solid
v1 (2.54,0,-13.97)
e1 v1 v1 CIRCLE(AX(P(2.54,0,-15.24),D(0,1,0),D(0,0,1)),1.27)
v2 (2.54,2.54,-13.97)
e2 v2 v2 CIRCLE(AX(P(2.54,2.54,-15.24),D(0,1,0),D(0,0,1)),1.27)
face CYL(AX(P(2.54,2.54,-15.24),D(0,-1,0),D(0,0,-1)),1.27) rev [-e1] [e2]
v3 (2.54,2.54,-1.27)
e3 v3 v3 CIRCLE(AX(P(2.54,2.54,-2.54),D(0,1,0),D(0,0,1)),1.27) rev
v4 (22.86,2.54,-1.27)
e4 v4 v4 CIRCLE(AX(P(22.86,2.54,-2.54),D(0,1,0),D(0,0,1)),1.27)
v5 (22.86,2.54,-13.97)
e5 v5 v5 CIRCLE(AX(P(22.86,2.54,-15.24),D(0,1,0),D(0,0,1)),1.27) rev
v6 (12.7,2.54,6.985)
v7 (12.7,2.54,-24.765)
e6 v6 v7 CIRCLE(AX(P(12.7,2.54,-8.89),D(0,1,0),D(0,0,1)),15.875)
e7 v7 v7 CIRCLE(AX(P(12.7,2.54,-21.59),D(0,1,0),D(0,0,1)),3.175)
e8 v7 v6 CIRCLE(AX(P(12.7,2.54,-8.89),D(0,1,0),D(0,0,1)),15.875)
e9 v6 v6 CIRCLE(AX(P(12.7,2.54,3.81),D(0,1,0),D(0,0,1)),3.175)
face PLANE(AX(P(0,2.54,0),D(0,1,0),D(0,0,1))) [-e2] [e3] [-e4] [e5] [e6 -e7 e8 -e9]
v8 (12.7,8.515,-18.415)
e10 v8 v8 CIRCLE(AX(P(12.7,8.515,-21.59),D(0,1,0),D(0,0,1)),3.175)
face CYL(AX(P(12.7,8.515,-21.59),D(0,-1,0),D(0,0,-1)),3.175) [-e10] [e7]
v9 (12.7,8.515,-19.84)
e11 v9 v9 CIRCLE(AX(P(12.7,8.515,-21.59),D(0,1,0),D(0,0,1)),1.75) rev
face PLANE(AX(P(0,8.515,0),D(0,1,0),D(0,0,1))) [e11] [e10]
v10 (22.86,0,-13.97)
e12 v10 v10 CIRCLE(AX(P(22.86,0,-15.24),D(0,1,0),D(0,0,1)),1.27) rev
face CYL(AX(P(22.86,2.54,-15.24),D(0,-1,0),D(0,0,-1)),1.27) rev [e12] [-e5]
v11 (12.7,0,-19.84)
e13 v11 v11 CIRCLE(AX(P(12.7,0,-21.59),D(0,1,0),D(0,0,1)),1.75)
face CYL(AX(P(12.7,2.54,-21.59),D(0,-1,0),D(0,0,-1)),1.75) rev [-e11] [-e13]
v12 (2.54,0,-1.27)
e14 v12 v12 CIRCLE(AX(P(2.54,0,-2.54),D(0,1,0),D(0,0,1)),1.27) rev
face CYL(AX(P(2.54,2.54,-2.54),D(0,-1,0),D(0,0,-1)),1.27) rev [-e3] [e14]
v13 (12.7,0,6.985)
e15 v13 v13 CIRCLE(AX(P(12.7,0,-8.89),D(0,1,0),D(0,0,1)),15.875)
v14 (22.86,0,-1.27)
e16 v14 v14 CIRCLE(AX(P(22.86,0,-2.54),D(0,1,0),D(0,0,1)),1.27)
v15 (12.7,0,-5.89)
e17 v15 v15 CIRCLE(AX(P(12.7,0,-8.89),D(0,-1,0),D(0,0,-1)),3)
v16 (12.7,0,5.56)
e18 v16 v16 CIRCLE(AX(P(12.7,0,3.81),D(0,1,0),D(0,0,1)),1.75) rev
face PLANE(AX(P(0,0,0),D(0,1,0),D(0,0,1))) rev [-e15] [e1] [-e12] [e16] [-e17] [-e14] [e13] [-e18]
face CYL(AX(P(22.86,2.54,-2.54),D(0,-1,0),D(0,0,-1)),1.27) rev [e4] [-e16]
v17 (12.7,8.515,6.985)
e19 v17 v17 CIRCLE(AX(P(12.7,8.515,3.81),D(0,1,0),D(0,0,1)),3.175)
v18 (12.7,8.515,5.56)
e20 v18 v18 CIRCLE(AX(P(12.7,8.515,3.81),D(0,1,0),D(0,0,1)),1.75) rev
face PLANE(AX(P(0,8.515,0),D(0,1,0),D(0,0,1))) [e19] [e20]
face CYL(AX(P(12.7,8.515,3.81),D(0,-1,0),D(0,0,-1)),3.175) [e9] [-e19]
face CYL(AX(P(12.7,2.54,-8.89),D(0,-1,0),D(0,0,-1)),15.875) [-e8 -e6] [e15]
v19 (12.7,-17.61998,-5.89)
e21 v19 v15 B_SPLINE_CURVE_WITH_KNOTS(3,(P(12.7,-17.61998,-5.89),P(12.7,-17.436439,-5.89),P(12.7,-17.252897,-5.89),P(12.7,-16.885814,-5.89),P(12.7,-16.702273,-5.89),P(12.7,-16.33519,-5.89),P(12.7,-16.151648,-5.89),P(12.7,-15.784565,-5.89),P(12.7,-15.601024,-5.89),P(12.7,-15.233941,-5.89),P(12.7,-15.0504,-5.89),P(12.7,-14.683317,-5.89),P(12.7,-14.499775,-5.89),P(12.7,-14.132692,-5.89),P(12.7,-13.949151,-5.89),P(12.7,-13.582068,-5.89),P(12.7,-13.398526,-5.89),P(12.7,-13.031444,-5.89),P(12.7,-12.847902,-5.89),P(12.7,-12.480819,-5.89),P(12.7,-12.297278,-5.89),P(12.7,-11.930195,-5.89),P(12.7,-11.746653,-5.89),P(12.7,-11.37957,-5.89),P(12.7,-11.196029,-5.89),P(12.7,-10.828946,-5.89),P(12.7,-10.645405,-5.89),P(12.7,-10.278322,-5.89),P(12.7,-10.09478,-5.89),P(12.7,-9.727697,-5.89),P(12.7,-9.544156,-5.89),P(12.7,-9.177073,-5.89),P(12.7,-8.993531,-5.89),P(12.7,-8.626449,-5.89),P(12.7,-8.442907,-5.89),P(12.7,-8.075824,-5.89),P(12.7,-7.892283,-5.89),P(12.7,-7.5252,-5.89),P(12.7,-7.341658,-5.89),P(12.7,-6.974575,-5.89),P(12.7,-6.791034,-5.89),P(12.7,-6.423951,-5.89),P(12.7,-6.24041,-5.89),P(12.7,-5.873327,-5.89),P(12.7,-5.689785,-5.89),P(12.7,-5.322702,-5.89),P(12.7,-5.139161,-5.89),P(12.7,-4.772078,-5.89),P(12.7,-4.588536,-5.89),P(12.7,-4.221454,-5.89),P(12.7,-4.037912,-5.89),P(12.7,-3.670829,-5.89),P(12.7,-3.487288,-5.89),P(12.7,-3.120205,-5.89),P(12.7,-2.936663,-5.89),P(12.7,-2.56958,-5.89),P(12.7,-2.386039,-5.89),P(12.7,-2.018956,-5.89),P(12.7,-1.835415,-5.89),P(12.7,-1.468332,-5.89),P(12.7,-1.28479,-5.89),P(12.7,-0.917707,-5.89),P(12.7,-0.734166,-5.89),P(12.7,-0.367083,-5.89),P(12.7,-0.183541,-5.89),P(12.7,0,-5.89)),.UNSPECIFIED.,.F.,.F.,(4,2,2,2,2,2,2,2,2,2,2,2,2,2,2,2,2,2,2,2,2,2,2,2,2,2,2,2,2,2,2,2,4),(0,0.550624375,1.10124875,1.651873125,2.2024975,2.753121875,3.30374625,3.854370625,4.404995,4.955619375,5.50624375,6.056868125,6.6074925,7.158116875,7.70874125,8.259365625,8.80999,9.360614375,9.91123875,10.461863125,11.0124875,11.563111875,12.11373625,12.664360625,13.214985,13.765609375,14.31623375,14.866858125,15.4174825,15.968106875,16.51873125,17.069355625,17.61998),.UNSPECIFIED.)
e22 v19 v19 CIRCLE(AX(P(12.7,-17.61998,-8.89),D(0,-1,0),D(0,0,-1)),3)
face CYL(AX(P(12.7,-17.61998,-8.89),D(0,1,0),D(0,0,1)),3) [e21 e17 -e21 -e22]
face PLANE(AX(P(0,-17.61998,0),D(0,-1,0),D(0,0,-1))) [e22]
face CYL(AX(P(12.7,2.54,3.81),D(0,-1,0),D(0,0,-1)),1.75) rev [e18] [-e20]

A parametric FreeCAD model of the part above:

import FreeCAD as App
import Part
import Sketcher
Q = App.Units.Quantity

doc = App.newDocument("Part")
body = doc.addObject("PartDesign::Body", "Body")

# Sketch on XZ plane
sketch1 = body.newObject("Sketcher::SketchObject", "Sketch")
sketch1.AttachmentSupport = (doc.getObject("XZ_Plane"), [""])
sketch1.MapMode = "FlatFace"
sketch1.addGeometry(Part.Circle(App.Vector(12.7, -8.9, 0), App.Vector(0, 0, 1), 15.9), False)
sketch1.addGeometry(Part.Circle(App.Vector(12.7, -21.6, 0), App.Vector(0, 0, 1), 1.8), False)
sketch1.addGeometry(Part.Circle(App.Vector(12.7, 3.8, 0), App.Vector(0, 0, 1), 1.8), False)
sketch1.addGeometry(Part.Circle(App.Vector(2.5, -2.5, 0), App.Vector(0, 0, 1), 1.3), False)
sketch1.addGeometry(Part.Circle(App.Vector(22.9, -15.2, 0), App.Vector(0, 0, 1), 1.3), False)
sketch1.addGeometry(Part.Circle(App.Vector(22.9, -2.5, 0), App.Vector(0, 0, 1), 1.3), False)
sketch1.addGeometry(Part.Circle(App.Vector(2.5, -15.2, 0), App.Vector(0, 0, 1), 1.3), False)
sketch1.addConstraint(Sketcher.Constraint("Equal", 1, 2))
sketch1.addConstraint(Sketcher.Constraint("Equal", 3, 4))
sketch1.addConstraint(Sketcher.Constraint("Equal", 4, 5))
sketch1.addConstraint(Sketcher.Constraint("Equal", 5, 6))
sketch1.addConstraint(Sketcher.Constraint("Horizontal", 3, 3, 5, 3))
sketch1.addConstraint(Sketcher.Constraint("Horizontal", 4, 3, 6, 3))
sketch1.addConstraint(Sketcher.Constraint("Vertical", 0, 3, 1, 3))
sketch1.addConstraint(Sketcher.Constraint("Vertical", 1, 3, 2, 3))
sketch1.addConstraint(Sketcher.Constraint("Vertical", 4, 3, 5, 3))
sketch1.addConstraint(Sketcher.Constraint("Vertical", 3, 3, 6, 3))
sketch1.addConstraint(Sketcher.Constraint("Diameter", 3, Q("0.1 in")))
sketch1.addConstraint(Sketcher.Constraint("Diameter", 0, Q("1.25 in")))
sketch1.addConstraint(Sketcher.Constraint("DistanceY", 1, 3, 2, 3, Q("1 in")))
sketch1.addConstraint(Sketcher.Constraint("DistanceX", -1, 1, 0, 3, Q("0.5 in")))
sketch1.addConstraint(Sketcher.Constraint("DistanceX", -1, 1, 3, 3, Q("0.1 in")))
sketch1.addConstraint(Sketcher.Constraint("DistanceY", 3, 3, -1, 1, Q("0.1 in")))
sketch1.addConstraint(Sketcher.Constraint("DistanceX", -1, 1, 4, 3, Q("0.9 in")))
sketch1.addConstraint(Sketcher.Constraint("DistanceY", 4, 3, -1, 1, Q("0.6 in")))
sketch1.addConstraint(Sketcher.Constraint("DistanceY", 1, 3, 0, 3, Q("0.5 in")))
sketch1.addConstraint(Sketcher.Constraint("Diameter", 1, Q("3.5 mm")))
sketch1.addConstraint(Sketcher.Constraint("DistanceY", 0, 3, -1, 1, Q("0.35 in")))
pad1 = body.newObject("PartDesign::Pad", "Pad")
pad1.Profile = sketch1
pad1.Length = Q("0.1 in")
pad1.Reversed = True

# Sketch on XZ plane
sketch2 = body.newObject("Sketcher::SketchObject", "Sketch001")
sketch2.AttachmentSupport = (doc.getObject("XZ_Plane"), [""])
sketch2.MapMode = "FlatFace"
sketch2.AttachmentOffset = App.Placement(App.Vector(0, 0, -0.1 * 25.4), App.Rotation())
sketch2.addGeometry(Part.Circle(App.Vector(12.7, -21.6, 0), App.Vector(0, 0, 1), 3.2), False)
sketch2.addGeometry(Part.Circle(App.Vector(12.7, -21.6, 0), App.Vector(0, 0, 1), 1.8), False)
sketch2.addGeometry(Part.Circle(App.Vector(12.7, 3.8, 0), App.Vector(0, 0, 1), 3.2), False)
sketch2.addGeometry(Part.Circle(App.Vector(12.7, 3.8, 0), App.Vector(0, 0, 1), 1.8), False)
sketch2.addConstraint(Sketcher.Constraint("Coincident", 1, 3, 0, 3))
sketch2.addConstraint(Sketcher.Constraint("Coincident", 3, 3, 2, 3))
sketch2.addConstraint(Sketcher.Constraint("Equal", 0, 2))
sketch2.addConstraint(Sketcher.Constraint("Equal", 1, 3))
sketch2.addConstraint(Sketcher.Constraint("Vertical", 1, 3, 2, 3))
sketch2.addConstraint(Sketcher.Constraint("Diameter", 0, Q("0.25 in")))
sketch2.addConstraint(Sketcher.Constraint("DistanceY", 0, 3, 2, 3, Q("1 in")))
sketch2.addConstraint(Sketcher.Constraint("DistanceX", -1, 1, 0, 3, Q("0.5 in")))
sketch2.addConstraint(Sketcher.Constraint("Diameter", 1, Q("3.5 mm")))
sketch2.addConstraint(Sketcher.Constraint("DistanceY", 0, 3, -1, 1, Q("0.85 in")))
pad2 = body.newObject("PartDesign::Pad", "Pad001")
pad2.Profile = sketch2
pad2.Length = 5.975
pad2.Reversed = True

# Sketch on XZ plane
sketch3 = body.newObject("Sketcher::SketchObject", "Sketch002")
sketch3.AttachmentSupport = (doc.getObject("XZ_Plane"), [""])
sketch3.MapMode = "FlatFace"
sketch3.addGeometry(Part.Circle(App.Vector(12.7, -8.9, 0), App.Vector(0, 0, 1), 3), False)
sketch3.addConstraint(Sketcher.Constraint("DistanceX", -1, 1, 0, 3, Q("0.5 in")))
sketch3.addConstraint(Sketcher.Constraint("Diameter", 0, Q("6 mm")))
sketch3.addConstraint(Sketcher.Constraint("DistanceY", 0, 3, -1, 1, Q("0.35 in")))
pad3 = body.newObject("PartDesign::Pad", "Pad002")
pad3.Profile = sketch3
pad3.Length = Q("0.6937 in")

doc.recompute()
